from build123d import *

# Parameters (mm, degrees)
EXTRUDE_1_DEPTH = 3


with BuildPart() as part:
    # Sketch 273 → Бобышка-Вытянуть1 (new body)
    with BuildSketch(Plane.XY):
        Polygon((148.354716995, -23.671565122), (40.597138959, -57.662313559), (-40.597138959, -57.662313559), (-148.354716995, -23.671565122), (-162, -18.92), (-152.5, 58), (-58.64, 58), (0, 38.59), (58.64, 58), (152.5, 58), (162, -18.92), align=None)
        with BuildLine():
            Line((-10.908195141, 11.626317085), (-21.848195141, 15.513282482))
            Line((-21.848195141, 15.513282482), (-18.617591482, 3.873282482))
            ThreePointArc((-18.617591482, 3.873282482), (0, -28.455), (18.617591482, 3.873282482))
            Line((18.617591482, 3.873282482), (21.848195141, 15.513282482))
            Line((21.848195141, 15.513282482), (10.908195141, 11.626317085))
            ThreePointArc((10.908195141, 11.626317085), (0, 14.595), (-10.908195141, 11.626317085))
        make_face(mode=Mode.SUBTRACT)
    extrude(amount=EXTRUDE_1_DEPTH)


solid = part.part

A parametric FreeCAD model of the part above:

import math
import FreeCAD as App
import Part
import Sketcher
from FreeCAD import Vector

doc = App.newDocument("Part")
body = doc.addObject("PartDesign::Body", "Body")

sketch1 = doc.addObject("Sketcher::SketchObject", "Sketch")
body.addObject(sketch1)
sketch1.AttachmentSupport = (doc.XY_Plane, [""])
sketch1.MapMode = "FlatFace"
sketch1.addGeometry(Part.LineSegment(Vector(41, -58, 0), Vector(148, -24, 0)), False)
sketch1.addGeometry(Part.LineSegment(Vector(148, -24, 0), Vector(162, -19, 0)), False)
sketch1.addGeometry(Part.LineSegment(Vector(162, -19, 0), Vector(152, 58, 0)), False)
sketch1.addGeometry(Part.LineSegment(Vector(152, 58, 0), Vector(59, 58, 0)), False)
sketch1.addGeometry(Part.LineSegment(Vector(59, 58, 0), Vector(0, 39, 0)), False)
sketch1.addGeometry(Part.LineSegment(Vector(0, 39, 0), Vector(-59, 58, 0)), False)
sketch1.addGeometry(Part.LineSegment(Vector(-59, 58, 0), Vector(-152, 58, 0)), False)
sketch1.addGeometry(Part.LineSegment(Vector(-152, 58, 0), Vector(-162, -19, 0)), False)
sketch1.addGeometry(Part.LineSegment(Vector(-162, -19, 0), Vector(-148, -24, 0)), False)
sketch1.addGeometry(Part.LineSegment(Vector(-148, -24, 0), Vector(-41, -58, 0)), False)
sketch1.addGeometry(Part.LineSegment(Vector(-41, -58, 0), Vector(41, -58, 0)), False)
sketch1.addGeometry(Part.ArcOfCircle(Part.Circle(Vector(0, -7, 0), Vector(0, 0, 1), 22), math.radians(60), math.radians(120)), False)
sketch1.addGeometry(Part.LineSegment(Vector(11, 12, 0), Vector(22, 16, 0)), False)
sketch1.addGeometry(Part.LineSegment(Vector(22, 16, 0), Vector(19, 4, 0)), False)
sketch1.addGeometry(Part.ArcOfCircle(Part.Circle(Vector(0, -7, 0), Vector(0, 0, 1), 22), math.radians(150), math.radians(390)), False)
sketch1.addGeometry(Part.LineSegment(Vector(-19, 4, 0), Vector(-22, 16, 0)), False)
sketch1.addGeometry(Part.LineSegment(Vector(-22, 16, 0), Vector(-11, 12, 0)), False)
sketch1.addConstraint(Sketcher.Constraint("Coincident", 0, 2, 1, 1))
sketch1.addConstraint(Sketcher.Constraint("Coincident", 1, 2, 2, 1))
sketch1.addConstraint(Sketcher.Constraint("Coincident", 2, 2, 3, 1))
sketch1.addConstraint(Sketcher.Constraint("Coincident", 3, 2, 4, 1))
sketch1.addConstraint(Sketcher.Constraint("Coincident", 4, 2, 5, 1))
sketch1.addConstraint(Sketcher.Constraint("Coincident", 5, 2, 6, 1))
sketch1.addConstraint(Sketcher.Constraint("Coincident", 6, 2, 7, 1))
sketch1.addConstraint(Sketcher.Constraint("Coincident", 7, 2, 8, 1))
sketch1.addConstraint(Sketcher.Constraint("Coincident", 8, 2, 9, 1))
sketch1.addConstraint(Sketcher.Constraint("Coincident", 9, 2, 10, 1))
sketch1.addConstraint(Sketcher.Constraint("Coincident", 10, 2, 0, 1))
sketch1.addConstraint(Sketcher.Constraint("Coincident", 11, 1, 12, 1))
sketch1.addConstraint(Sketcher.Constraint("Coincident", 12, 2, 13, 1))
sketch1.addConstraint(Sketcher.Constraint("Coincident", 13, 2, 14, 2))
sketch1.addConstraint(Sketcher.Constraint("Coincident", 14, 1, 15, 1))
sketch1.addConstraint(Sketcher.Constraint("Coincident", 15, 2, 16, 1))
sketch1.addConstraint(Sketcher.Constraint("Coincident", 16, 2, 11, 2))
sketch1.addConstraint(Sketcher.Constraint("Horizontal", 3))
sketch1.addConstraint(Sketcher.Constraint("Horizontal", 6))
sketch1.addConstraint(Sketcher.Constraint("Horizontal", 10))
sketch1.addConstraint(Sketcher.Constraint("Coincident", 14, 3, 11, 3))
sketch1.addConstraint(Sketcher.Constraint("Equal", 11, 14))
sketch1.addConstraint(Sketcher.Constraint("Symmetric", 3, 2, 5, 2, -2))
sketch1.addConstraint(Sketcher.Constraint("Symmetric", 1, 2, 7, 2, -2))
sketch1.addConstraint(Sketcher.Constraint("Symmetric", 0, 2, 8, 2, -2))
sketch1.addConstraint(Sketcher.Constraint("Symmetric", 13, 2, 14, 1, -2))
sketch1.addConstraint(Sketcher.Constraint("Symmetric", 12, 2, 15, 2, -2))
sketch1.addConstraint(Sketcher.Constraint("PointOnObject", 4, 2, -2))
sketch1.addConstraint(Sketcher.Constraint("Horizontal", 11, 1, 16, 2))
sketch1.addConstraint(Sketcher.Constraint("Equal", 3, 6))
sketch1.addConstraint(Sketcher.Constraint("Equal", 0, 9))
sketch1.addConstraint(Sketcher.Constraint("DistanceX", -1, 1, 1, 2, 162.0))
sketch1.addConstraint(Sketcher.Constraint("DistanceY", -1, 1, 2, 2, 58.0))
sketch1.addConstraint(Sketcher.Constraint("Radius", 11, 21.525))
sketch1.addConstraint(Sketcher.Constraint("DistanceX", 3, 2, 3, 1, 93.86))
sketch1.addConstraint(Sketcher.Constraint("DistanceX", -1, 1, 2, 2, 152.5))
sketch1.addConstraint(Sketcher.Constraint("Distance", 12, 11.61))
sketch1.addConstraint(Sketcher.Constraint("Distance", 13, 12.08))
sketch1.addConstraint(Sketcher.Constraint("DistanceY", 11, 3, -1, 1, 6.93))
sketch1.addConstraint(Sketcher.Constraint("DistanceY", 1, 2, -1, 1, 18.92))
sketch1.addConstraint(Sketcher.Constraint("DistanceY", -1, 1, 4, 2, 38.59))
sketch1.addConstraint(Sketcher.Constraint("DistanceX", 11, 1, 12, 2, 10.94))
sketch1.addConstraint(Sketcher.Constraint("DistanceY", 13, 2, 12, 2, 11.64))
sketch1.addConstraint(Sketcher.Constraint("DistanceX", 10, 1, 10, 2, 81.194278))
sketch1.addConstraint(Sketcher.Constraint("DistanceX", 8, 2, 9, 2, 107.757578))
sketch1.addConstraint(Sketcher.Constraint("DistanceY", 9, 2, 8, 2, 33.990748))
sketch1.addConstraint(Sketcher.Constraint("DistanceY", 10, 2, 11, 1, 69.288631))
pad1 = doc.addObject("PartDesign::Pad", "Pad")
body.addObject(pad1)
pad1.Profile = sketch1
pad1.Length = 3

doc.recompute()
